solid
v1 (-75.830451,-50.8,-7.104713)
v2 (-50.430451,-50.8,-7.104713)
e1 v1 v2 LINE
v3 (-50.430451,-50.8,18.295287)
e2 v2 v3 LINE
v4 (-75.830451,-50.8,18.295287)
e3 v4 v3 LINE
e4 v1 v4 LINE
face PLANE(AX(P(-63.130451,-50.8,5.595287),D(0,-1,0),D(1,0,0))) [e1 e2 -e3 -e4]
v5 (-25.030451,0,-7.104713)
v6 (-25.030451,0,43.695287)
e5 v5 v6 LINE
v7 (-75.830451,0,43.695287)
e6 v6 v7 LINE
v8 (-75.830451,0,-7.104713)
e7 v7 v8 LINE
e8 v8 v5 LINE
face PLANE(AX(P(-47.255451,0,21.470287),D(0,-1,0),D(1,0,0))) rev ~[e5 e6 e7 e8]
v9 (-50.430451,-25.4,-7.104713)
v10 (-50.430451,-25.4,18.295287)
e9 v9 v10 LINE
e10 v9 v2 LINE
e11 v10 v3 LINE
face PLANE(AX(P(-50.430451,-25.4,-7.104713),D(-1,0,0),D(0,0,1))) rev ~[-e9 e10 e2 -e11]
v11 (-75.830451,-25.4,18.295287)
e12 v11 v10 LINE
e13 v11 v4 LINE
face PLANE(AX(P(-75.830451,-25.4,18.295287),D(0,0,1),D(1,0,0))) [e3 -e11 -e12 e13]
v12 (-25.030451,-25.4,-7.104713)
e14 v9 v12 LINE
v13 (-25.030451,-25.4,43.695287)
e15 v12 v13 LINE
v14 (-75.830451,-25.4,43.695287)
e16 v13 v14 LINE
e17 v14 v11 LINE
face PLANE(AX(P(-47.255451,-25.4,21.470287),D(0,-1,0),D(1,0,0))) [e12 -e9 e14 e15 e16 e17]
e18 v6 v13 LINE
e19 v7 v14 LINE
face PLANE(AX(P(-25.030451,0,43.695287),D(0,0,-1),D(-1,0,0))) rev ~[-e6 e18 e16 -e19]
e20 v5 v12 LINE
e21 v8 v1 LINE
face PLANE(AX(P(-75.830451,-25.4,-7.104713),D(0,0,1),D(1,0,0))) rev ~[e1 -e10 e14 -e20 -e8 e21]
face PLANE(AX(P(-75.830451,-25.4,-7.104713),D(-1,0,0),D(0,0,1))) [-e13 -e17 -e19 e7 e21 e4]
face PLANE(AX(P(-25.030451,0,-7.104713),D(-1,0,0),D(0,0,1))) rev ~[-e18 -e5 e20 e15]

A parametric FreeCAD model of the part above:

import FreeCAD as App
import Part
import Sketcher

V = App.Vector
Q = App.Units.Quantity

doc = App.newDocument("Part")
params = doc.addObject("Spreadsheet::Sheet", "Params")
for row, (alias, value) in enumerate([
    ("sketch1_width", "2 in"),
    ("pad1_length", "1 in"),
    ("sketch2_width", "1 in"),
    ("pad2_length", "1 in"),
], start=1):
    params.set(f"A{row}", alias)
    params.set(f"B{row}", "=" + value)
    params.setAlias(f"B{row}", alias)

body = doc.addObject("PartDesign::Body", "Body")

# Sketch on XZ plane
sketch1 = body.newObject("Sketcher::SketchObject", "Sketch")
sketch1.AttachmentSupport = (doc.getObject("XZ_Plane"), [""])
sketch1.MapMode = "FlatFace"
sketch1.addGeometry(Part.LineSegment(V(-25, 44, 0), V(-76, 44, 0)), False)
sketch1.addGeometry(Part.LineSegment(V(-76, 44, 0), V(-76, -7, 0)), False)
sketch1.addGeometry(Part.LineSegment(V(-76, -7, 0), V(-25, -7, 0)), False)
sketch1.addGeometry(Part.LineSegment(V(-25, -7, 0), V(-25, 44, 0)), False)
sketch1.addConstraint(Sketcher.Constraint("Coincident", 0, 2, 1, 1))
sketch1.addConstraint(Sketcher.Constraint("Coincident", 1, 2, 2, 1))
sketch1.addConstraint(Sketcher.Constraint("Coincident", 2, 2, 3, 1))
sketch1.addConstraint(Sketcher.Constraint("Coincident", 3, 2, 0, 1))
sketch1.addConstraint(Sketcher.Constraint("Horizontal", 0))
sketch1.addConstraint(Sketcher.Constraint("Vertical", 1))
sketch1.addConstraint(Sketcher.Constraint("Horizontal", 2))
sketch1.addConstraint(Sketcher.Constraint("Vertical", 3))
sketch1.addConstraint(Sketcher.Constraint("Equal", 2, 1))
sketch1.addConstraint(Sketcher.Constraint("DistanceX", 0, 2, 0, 1, Q("2 in")))
sketch1.addConstraint(Sketcher.Constraint("DistanceX", 0, 2, -1, 1, Q("75.830451 mm")))
sketch1.addConstraint(Sketcher.Constraint("DistanceY", -1, 1, 0, 2, Q("43.695287 mm")))
sketch1.setExpression("Constraints[9]", "Params.sketch1_width")
pad1 = body.newObject("PartDesign::Pad", "Pad")
pad1.Profile = sketch1
pad1.setExpression("Length", "Params.pad1_length")

# Sketch on XZ plane
sketch2 = body.newObject("Sketcher::SketchObject", "Sketch001")
sketch2.AttachmentSupport = (doc.getObject("XZ_Plane"), [""])
sketch2.MapMode = "FlatFace"
sketch2.AttachmentOffset = App.Placement(V(0, 0, 1 * 25.4), App.Rotation())
sketch2.addGeometry(Part.LineSegment(V(-76, 18, 0), V(-76, -7, 0)), False)
sketch2.addGeometry(Part.LineSegment(V(-76, -7, 0), V(-50, -7, 0)), False)
sketch2.addGeometry(Part.LineSegment(V(-50, -7, 0), V(-50, 18, 0)), False)
sketch2.addGeometry(Part.LineSegment(V(-50, 18, 0), V(-76, 18, 0)), False)
sketch2.addConstraint(Sketcher.Constraint("Coincident", 0, 2, 1, 1))
sketch2.addConstraint(Sketcher.Constraint("Coincident", 1, 2, 2, 1))
sketch2.addConstraint(Sketcher.Constraint("Coincident", 2, 2, 3, 1))
sketch2.addConstraint(Sketcher.Constraint("Coincident", 3, 2, 0, 1))
sketch2.addConstraint(Sketcher.Constraint("Vertical", 0))
sketch2.addConstraint(Sketcher.Constraint("Horizontal", 1))
sketch2.addConstraint(Sketcher.Constraint("Vertical", 2))
sketch2.addConstraint(Sketcher.Constraint("Horizontal", 3))
sketch2.addConstraint(Sketcher.Constraint("Equal", 3, 0))
sketch2.addConstraint(Sketcher.Constraint("DistanceX", 1, 1, 1, 2, Q("1 in")))
sketch2.addConstraint(Sketcher.Constraint("DistanceX", 0, 2, -1, 1, Q("75.830451 mm")))
sketch2.addConstraint(Sketcher.Constraint("DistanceY", 0, 2, -1, 1, Q("7.104713 mm")))
sketch2.setExpression("Constraints[9]", "Params.sketch2_width")
pad2 = body.newObject("PartDesign::Pad", "Pad001")
pad2.Profile = sketch2
pad2.setExpression("Length", "Params.pad2_length")

doc.recompute()
